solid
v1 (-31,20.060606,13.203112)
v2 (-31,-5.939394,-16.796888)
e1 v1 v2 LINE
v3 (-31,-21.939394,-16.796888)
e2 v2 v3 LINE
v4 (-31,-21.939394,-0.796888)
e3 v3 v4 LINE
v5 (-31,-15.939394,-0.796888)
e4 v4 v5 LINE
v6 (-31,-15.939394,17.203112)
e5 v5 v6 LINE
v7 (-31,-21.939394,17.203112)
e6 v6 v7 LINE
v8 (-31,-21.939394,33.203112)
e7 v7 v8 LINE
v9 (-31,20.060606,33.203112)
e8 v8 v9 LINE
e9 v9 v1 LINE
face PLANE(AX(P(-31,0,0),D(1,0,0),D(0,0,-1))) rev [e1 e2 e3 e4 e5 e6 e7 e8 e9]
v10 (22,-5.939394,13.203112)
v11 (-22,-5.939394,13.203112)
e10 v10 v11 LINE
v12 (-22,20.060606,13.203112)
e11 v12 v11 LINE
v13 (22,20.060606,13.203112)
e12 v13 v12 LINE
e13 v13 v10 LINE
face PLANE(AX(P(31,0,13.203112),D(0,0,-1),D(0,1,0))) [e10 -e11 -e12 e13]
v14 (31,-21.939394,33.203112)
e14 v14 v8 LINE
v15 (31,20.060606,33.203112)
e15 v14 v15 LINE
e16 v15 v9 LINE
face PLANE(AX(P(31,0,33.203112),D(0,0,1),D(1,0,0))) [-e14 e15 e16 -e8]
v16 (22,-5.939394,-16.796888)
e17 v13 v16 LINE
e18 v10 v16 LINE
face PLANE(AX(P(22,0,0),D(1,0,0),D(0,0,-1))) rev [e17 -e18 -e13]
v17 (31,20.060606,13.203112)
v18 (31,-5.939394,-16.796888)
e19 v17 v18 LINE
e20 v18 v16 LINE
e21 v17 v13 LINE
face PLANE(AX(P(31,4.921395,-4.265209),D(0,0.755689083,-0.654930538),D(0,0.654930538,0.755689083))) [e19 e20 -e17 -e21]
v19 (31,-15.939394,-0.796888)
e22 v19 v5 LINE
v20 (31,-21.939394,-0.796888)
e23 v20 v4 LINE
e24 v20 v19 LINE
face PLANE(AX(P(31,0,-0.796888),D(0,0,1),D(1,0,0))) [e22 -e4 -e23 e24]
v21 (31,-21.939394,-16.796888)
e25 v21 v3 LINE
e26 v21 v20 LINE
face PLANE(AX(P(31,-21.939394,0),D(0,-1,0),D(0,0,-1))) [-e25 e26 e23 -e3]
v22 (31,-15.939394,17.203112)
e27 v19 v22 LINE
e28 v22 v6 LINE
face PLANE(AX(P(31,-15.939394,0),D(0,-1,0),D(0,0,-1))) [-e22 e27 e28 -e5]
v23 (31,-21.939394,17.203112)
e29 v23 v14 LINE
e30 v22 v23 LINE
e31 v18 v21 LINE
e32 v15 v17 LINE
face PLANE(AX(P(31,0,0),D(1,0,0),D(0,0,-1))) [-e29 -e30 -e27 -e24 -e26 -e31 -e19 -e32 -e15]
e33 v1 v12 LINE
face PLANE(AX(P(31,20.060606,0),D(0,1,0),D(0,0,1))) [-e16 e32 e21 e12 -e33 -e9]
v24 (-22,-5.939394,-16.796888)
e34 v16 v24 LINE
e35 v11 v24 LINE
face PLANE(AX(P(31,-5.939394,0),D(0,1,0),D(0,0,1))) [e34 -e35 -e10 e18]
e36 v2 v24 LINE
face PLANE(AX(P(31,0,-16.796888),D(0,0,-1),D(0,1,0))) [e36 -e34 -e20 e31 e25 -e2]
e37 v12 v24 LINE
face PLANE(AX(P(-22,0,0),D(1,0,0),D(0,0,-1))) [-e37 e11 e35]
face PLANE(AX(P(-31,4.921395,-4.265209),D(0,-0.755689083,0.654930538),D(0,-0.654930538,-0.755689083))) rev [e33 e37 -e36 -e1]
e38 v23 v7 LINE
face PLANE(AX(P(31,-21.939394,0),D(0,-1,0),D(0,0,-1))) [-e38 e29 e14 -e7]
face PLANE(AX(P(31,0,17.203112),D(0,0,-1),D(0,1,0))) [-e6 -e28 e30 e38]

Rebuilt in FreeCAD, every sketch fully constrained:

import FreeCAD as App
import Part
import Sketcher

V = App.Vector
Q = App.Units.Quantity


def add_polygon(sketch, points):
    """Adds a closed chain of lines whose ends are joined by coincident constraints."""
    first, n = sketch.GeometryCount, len(points)
    for a, b in zip(points, points[1:] + points[:1]):
        sketch.addGeometry(Part.LineSegment(App.Vector(*a, 0), App.Vector(*b, 0)), False)
    for i in range(n):
        sketch.addConstraint(Sketcher.Constraint("Coincident", first + i, 2, first + (i + 1) % n, 1))

doc = App.newDocument("Part")
params = doc.addObject("Spreadsheet::Sheet", "Params")
for row, (alias, value) in enumerate([
    ("sketch1_width", "42 mm"),
    ("sketch1_width2", "6 mm"),
    ("sketch1_width3", "16 mm"),
    ("sketch1_height", "18 mm"),
    ("sketch1_height2", "30 mm"),
    ("pad1_length", "62 mm"),
    ("sketch2_width", "26 mm"),
    ("sketch2_height", "30 mm"),
    ("pad2_length", "9 mm"),
    ("sketch3_width", "26 mm"),
    ("sketch3_height", "30 mm"),
    ("pad3_length", "9 mm"),
], start=1):
    params.set(f"A{row}", alias)
    params.set(f"B{row}", "=" + value)
    params.setAlias(f"B{row}", alias)

body = doc.addObject("PartDesign::Body", "Body")

# Sketch on YZ plane
sketch1 = body.newObject("Sketcher::SketchObject", "Sketch")
sketch1.AttachmentSupport = (doc.getObject("YZ_Plane"), [""])
sketch1.MapMode = "FlatFace"
add_polygon(sketch1, [(20, 33), (-22, 33), (-22, 17), (-16, 17), (-16, -1), (-22, -1), (-22, -17), (-6, -17), (-6, 13), (20, 13)])  # lines 0-9
sketch1.addConstraint(Sketcher.Constraint("Horizontal", 0))
sketch1.addConstraint(Sketcher.Constraint("Vertical", 1))
sketch1.addConstraint(Sketcher.Constraint("Horizontal", 2))
sketch1.addConstraint(Sketcher.Constraint("Vertical", 3))
sketch1.addConstraint(Sketcher.Constraint("Horizontal", 4))
sketch1.addConstraint(Sketcher.Constraint("Vertical", 5))
sketch1.addConstraint(Sketcher.Constraint("Horizontal", 6))
sketch1.addConstraint(Sketcher.Constraint("Vertical", 7))
sketch1.addConstraint(Sketcher.Constraint("Horizontal", 8))
sketch1.addConstraint(Sketcher.Constraint("Vertical", 9))
sketch1.addConstraint(Sketcher.Constraint("Vertical", 1, 2, 4, 2))
sketch1.addConstraint(Sketcher.Constraint("Equal", 6, 1))
sketch1.addConstraint(Sketcher.Constraint("Equal", 1, 5))
sketch1.addConstraint(Sketcher.Constraint("DistanceX", 0, 2, 0, 1, Q("42 mm")))
sketch1.addConstraint(Sketcher.Constraint("DistanceX", 2, 1, 2, 2, Q("6 mm")))
sketch1.addConstraint(Sketcher.Constraint("DistanceX", 6, 1, 6, 2, Q("16 mm")))
sketch1.addConstraint(Sketcher.Constraint("DistanceY", 3, 2, 3, 1, Q("18 mm")))
sketch1.addConstraint(Sketcher.Constraint("DistanceY", 7, 1, 7, 2, Q("30 mm")))
sketch1.addConstraint(Sketcher.Constraint("DistanceX", 0, 2, -1, 1, Q("21.939394 mm")))
sketch1.addConstraint(Sketcher.Constraint("DistanceY", -1, 1, 0, 2, Q("33.203112 mm")))
sketch1.setExpression("Constraints[23]", "Params.sketch1_width")
sketch1.setExpression("Constraints[24]", "Params.sketch1_width2")
sketch1.setExpression("Constraints[25]", "Params.sketch1_width3")
sketch1.setExpression("Constraints[26]", "Params.sketch1_height")
sketch1.setExpression("Constraints[27]", "Params.sketch1_height2")
pad1 = body.newObject("PartDesign::Pad", "Pad")
pad1.Profile = sketch1
pad1.setExpression("Length", "Params.pad1_length")
pad1.Midplane = True

# Sketch on YZ plane
sketch2 = body.newObject("Sketcher::SketchObject", "Sketch001")
sketch2.AttachmentSupport = (doc.getObject("YZ_Plane"), [""])
sketch2.MapMode = "FlatFace"
sketch2.AttachmentOffset = App.Placement(V(0, 0, 22), App.Rotation())
add_polygon(sketch2, [(-6, -17), (20, 13), (-6, 13)])  # lines 0-2
sketch2.addConstraint(Sketcher.Constraint("Horizontal", 1))
sketch2.addConstraint(Sketcher.Constraint("Vertical", 2))
sketch2.addConstraint(Sketcher.Constraint("DistanceX", 1, 2, 1, 1, Q("26 mm")))
sketch2.addConstraint(Sketcher.Constraint("DistanceY", 2, 2, 2, 1, Q("30 mm")))
sketch2.addConstraint(Sketcher.Constraint("DistanceX", -1, 1, 0, 2, Q("20.060606 mm")))
sketch2.addConstraint(Sketcher.Constraint("DistanceY", -1, 1, 0, 2, Q("13.203112 mm")))
sketch2.setExpression("Constraints[5]", "Params.sketch2_width")
sketch2.setExpression("Constraints[6]", "Params.sketch2_height")
pad2 = body.newObject("PartDesign::Pad", "Pad001")
pad2.Profile = sketch2
pad2.setExpression("Length", "Params.pad2_length")

# Sketch on YZ plane
sketch3 = body.newObject("Sketcher::SketchObject", "Sketch002")
sketch3.AttachmentSupport = (doc.getObject("YZ_Plane"), [""])
sketch3.MapMode = "FlatFace"
sketch3.AttachmentOffset = App.Placement(V(0, 0, -22), App.Rotation())
add_polygon(sketch3, [(-6, -17), (20, 13), (-6, 13)])  # lines 0-2
sketch3.addConstraint(Sketcher.Constraint("Horizontal", 1))
sketch3.addConstraint(Sketcher.Constraint("Vertical", 2))
sketch3.addConstraint(Sketcher.Constraint("DistanceX", 1, 2, 1, 1, Q("26 mm")))
sketch3.addConstraint(Sketcher.Constraint("DistanceY", 2, 2, 2, 1, Q("30 mm")))
sketch3.addConstraint(Sketcher.Constraint("DistanceX", -1, 1, 0, 2, Q("20.060606 mm")))
sketch3.addConstraint(Sketcher.Constraint("DistanceY", -1, 1, 0, 2, Q("13.203112 mm")))
sketch3.setExpression("Constraints[5]", "Params.sketch3_width")
sketch3.setExpression("Constraints[6]", "Params.sketch3_height")
pad3 = body.newObject("PartDesign::Pad", "Pad002")
pad3.Profile = sketch3
pad3.setExpression("Length", "Params.pad3_length")
pad3.Reversed = True

doc.recompute()
